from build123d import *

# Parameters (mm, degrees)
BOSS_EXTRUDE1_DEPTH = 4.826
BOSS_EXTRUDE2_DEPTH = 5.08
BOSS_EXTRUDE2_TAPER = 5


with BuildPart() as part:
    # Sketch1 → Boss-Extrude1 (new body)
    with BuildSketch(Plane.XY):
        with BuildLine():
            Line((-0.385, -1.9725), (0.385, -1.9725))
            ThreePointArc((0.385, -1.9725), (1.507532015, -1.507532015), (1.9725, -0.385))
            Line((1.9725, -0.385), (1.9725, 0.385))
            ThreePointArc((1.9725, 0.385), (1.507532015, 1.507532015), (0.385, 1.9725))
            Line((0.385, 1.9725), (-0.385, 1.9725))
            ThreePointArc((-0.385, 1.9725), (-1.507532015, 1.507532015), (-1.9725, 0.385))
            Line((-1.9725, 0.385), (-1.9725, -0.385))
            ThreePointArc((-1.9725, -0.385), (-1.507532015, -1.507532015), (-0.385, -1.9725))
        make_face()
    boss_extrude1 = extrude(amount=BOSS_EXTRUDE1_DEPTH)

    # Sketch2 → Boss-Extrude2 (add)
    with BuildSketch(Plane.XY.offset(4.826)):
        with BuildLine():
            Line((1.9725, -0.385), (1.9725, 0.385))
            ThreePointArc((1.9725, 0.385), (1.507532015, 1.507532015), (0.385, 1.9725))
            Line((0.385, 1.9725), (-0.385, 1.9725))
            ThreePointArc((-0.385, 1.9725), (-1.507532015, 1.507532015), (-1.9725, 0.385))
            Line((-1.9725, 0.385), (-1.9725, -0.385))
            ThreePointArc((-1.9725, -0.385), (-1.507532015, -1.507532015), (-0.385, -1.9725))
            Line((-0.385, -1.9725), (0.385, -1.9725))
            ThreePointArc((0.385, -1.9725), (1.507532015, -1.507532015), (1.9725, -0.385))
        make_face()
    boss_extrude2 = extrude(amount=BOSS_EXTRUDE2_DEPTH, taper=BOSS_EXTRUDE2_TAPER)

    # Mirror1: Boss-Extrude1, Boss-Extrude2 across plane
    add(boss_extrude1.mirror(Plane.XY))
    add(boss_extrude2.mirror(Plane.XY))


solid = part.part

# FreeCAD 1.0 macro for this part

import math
import FreeCAD as App
import Part
import Sketcher
Q = App.Units.Quantity

doc = App.newDocument("Part")
body = doc.addObject("PartDesign::Body", "Body")

sketch1 = body.newObject("Sketcher::SketchObject", "Sketch")
sketch1.AttachmentSupport = (doc.getObject("XY_Plane"), [""])
sketch1.MapMode = "FlatFace"
sketch1.addGeometry(Part.LineSegment(App.Vector(-0.385, -1.9725, 0), App.Vector(0.385, -1.9725, 0)), False)
sketch1.addGeometry(Part.ArcOfCircle(Part.Circle(App.Vector(0.385, -0.385, 0), App.Vector(0, 0, 1), 1.5875), math.radians(-90), math.radians(0)), False)
sketch1.addGeometry(Part.LineSegment(App.Vector(1.9725, -0.385, 0), App.Vector(1.9725, 0.385, 0)), False)
sketch1.addGeometry(Part.ArcOfCircle(Part.Circle(App.Vector(0.385, 0.385, 0), App.Vector(0, 0, 1), 1.5875), math.radians(0), math.radians(90)), False)
sketch1.addGeometry(Part.LineSegment(App.Vector(0.385, 1.9725, 0), App.Vector(-0.385, 1.9725, 0)), False)
sketch1.addGeometry(Part.ArcOfCircle(Part.Circle(App.Vector(-0.385, 0.385, 0), App.Vector(0, 0, 1), 1.5875), math.radians(90), math.radians(180)), False)
sketch1.addGeometry(Part.LineSegment(App.Vector(-1.9725, 0.385, 0), App.Vector(-1.9725, -0.385, 0)), False)
sketch1.addGeometry(Part.ArcOfCircle(Part.Circle(App.Vector(-0.385, -0.385, 0), App.Vector(0, 0, 1), 1.5875), math.radians(180), math.radians(270)), False)
sketch1.addConstraint(Sketcher.Constraint("Tangent", 0, 2, 1, 1))
sketch1.addConstraint(Sketcher.Constraint("Tangent", 1, 2, 2, 1))
sketch1.addConstraint(Sketcher.Constraint("Tangent", 2, 2, 3, 1))
sketch1.addConstraint(Sketcher.Constraint("Tangent", 3, 2, 4, 1))
sketch1.addConstraint(Sketcher.Constraint("Tangent", 4, 2, 5, 1))
sketch1.addConstraint(Sketcher.Constraint("Tangent", 5, 2, 6, 1))
sketch1.addConstraint(Sketcher.Constraint("Tangent", 6, 2, 7, 1))
sketch1.addConstraint(Sketcher.Constraint("Tangent", 7, 2, 0, 1))
sketch1.addConstraint(Sketcher.Constraint("Horizontal", 0))
sketch1.addConstraint(Sketcher.Constraint("Vertical", 2))
sketch1.addConstraint(Sketcher.Constraint("Horizontal", 4))
sketch1.addConstraint(Sketcher.Constraint("Vertical", 6))
sketch1.addConstraint(Sketcher.Constraint("Equal", 1, 3))
sketch1.addConstraint(Sketcher.Constraint("Equal", 3, 5))
sketch1.addConstraint(Sketcher.Constraint("Equal", 5, 7))
sketch1.addConstraint(Sketcher.Constraint("Symmetric", 1, 3, 5, 3, -1, 1))
sketch1.addConstraint(Sketcher.Constraint("Equal", 4, 2))
sketch1.addConstraint(Sketcher.Constraint("Radius", 1, Q("0.0625 in")))
sketch1.addConstraint(Sketcher.Constraint("DistanceX", 0, 1, 0, 2, Q("0.77 mm")))
pad1 = body.newObject("PartDesign::Pad", "Pad")
pad1.Profile = sketch1
pad1.Length = Q("0.19 in")

sketch2 = body.newObject("Sketcher::SketchObject", "Sketch001")
sketch2.AttachmentSupport = (doc.getObject("XY_Plane"), [""])
sketch2.MapMode = "FlatFace"
sketch2.AttachmentOffset = App.Placement(App.Vector(0, 0, 0.19 * 25.4), App.Rotation())
sketch2.addGeometry(Part.LineSegment(App.Vector(1.9725, -0.385, 0), App.Vector(1.9725, 0.385, 0)), False)
sketch2.addGeometry(Part.ArcOfCircle(Part.Circle(App.Vector(0.385, 0.385, 0), App.Vector(0, 0, 1), 1.5875), math.radians(0), math.radians(90)), False)
sketch2.addGeometry(Part.LineSegment(App.Vector(0.385, 1.9725, 0), App.Vector(-0.385, 1.9725, 0)), False)
sketch2.addGeometry(Part.ArcOfCircle(Part.Circle(App.Vector(-0.385, 0.385, 0), App.Vector(0, 0, 1), 1.5875), math.radians(90), math.radians(180)), False)
sketch2.addGeometry(Part.LineSegment(App.Vector(-1.9725, 0.385, 0), App.Vector(-1.9725, -0.385, 0)), False)
sketch2.addGeometry(Part.ArcOfCircle(Part.Circle(App.Vector(-0.385, -0.385, 0), App.Vector(0, 0, 1), 1.5875), math.radians(180), math.radians(270)), False)
sketch2.addGeometry(Part.LineSegment(App.Vector(-0.385, -1.9725, 0), App.Vector(0.385, -1.9725, 0)), False)
sketch2.addGeometry(Part.ArcOfCircle(Part.Circle(App.Vector(0.385, -0.385, 0), App.Vector(0, 0, 1), 1.5875), math.radians(-90), math.radians(0)), False)
sketch2.addConstraint(Sketcher.Constraint("Tangent", 0, 2, 1, 1))
sketch2.addConstraint(Sketcher.Constraint("Tangent", 1, 2, 2, 1))
sketch2.addConstraint(Sketcher.Constraint("Tangent", 2, 2, 3, 1))
sketch2.addConstraint(Sketcher.Constraint("Tangent", 3, 2, 4, 1))
sketch2.addConstraint(Sketcher.Constraint("Tangent", 4, 2, 5, 1))
sketch2.addConstraint(Sketcher.Constraint("Tangent", 5, 2, 6, 1))
sketch2.addConstraint(Sketcher.Constraint("Tangent", 6, 2, 7, 1))
sketch2.addConstraint(Sketcher.Constraint("Tangent", 7, 2, 0, 1))
sketch2.addConstraint(Sketcher.Constraint("Vertical", 0))
sketch2.addConstraint(Sketcher.Constraint("Horizontal", 2))
sketch2.addConstraint(Sketcher.Constraint("Vertical", 4))
sketch2.addConstraint(Sketcher.Constraint("Horizontal", 6))
sketch2.addConstraint(Sketcher.Constraint("Equal", 1, 3))
sketch2.addConstraint(Sketcher.Constraint("Equal", 3, 5))
sketch2.addConstraint(Sketcher.Constraint("Equal", 5, 7))
sketch2.addConstraint(Sketcher.Constraint("Symmetric", 1, 3, 5, 3, -1, 1))
sketch2.addConstraint(Sketcher.Constraint("Equal", 6, 0))
sketch2.addConstraint(Sketcher.Constraint("Radius", 1, Q("0.0625 in")))
sketch2.addConstraint(Sketcher.Constraint("DistanceX", 2, 2, 2, 1, Q("0.77 mm")))
pad2 = body.newObject("PartDesign::Pad", "Pad001")
pad2.Profile = sketch2
pad2.Length = Q("0.2 in")
pad2.TaperAngle = -5
doc.recompute()

mirrored = body.newObject("PartDesign::Mirrored", "Mirrored")
mirrored.Originals = [pad1, pad2]
mirrored.MirrorPlane = (doc.getObject("XY_Plane"), [""])
body.Tip = mirrored

doc.recompute()
